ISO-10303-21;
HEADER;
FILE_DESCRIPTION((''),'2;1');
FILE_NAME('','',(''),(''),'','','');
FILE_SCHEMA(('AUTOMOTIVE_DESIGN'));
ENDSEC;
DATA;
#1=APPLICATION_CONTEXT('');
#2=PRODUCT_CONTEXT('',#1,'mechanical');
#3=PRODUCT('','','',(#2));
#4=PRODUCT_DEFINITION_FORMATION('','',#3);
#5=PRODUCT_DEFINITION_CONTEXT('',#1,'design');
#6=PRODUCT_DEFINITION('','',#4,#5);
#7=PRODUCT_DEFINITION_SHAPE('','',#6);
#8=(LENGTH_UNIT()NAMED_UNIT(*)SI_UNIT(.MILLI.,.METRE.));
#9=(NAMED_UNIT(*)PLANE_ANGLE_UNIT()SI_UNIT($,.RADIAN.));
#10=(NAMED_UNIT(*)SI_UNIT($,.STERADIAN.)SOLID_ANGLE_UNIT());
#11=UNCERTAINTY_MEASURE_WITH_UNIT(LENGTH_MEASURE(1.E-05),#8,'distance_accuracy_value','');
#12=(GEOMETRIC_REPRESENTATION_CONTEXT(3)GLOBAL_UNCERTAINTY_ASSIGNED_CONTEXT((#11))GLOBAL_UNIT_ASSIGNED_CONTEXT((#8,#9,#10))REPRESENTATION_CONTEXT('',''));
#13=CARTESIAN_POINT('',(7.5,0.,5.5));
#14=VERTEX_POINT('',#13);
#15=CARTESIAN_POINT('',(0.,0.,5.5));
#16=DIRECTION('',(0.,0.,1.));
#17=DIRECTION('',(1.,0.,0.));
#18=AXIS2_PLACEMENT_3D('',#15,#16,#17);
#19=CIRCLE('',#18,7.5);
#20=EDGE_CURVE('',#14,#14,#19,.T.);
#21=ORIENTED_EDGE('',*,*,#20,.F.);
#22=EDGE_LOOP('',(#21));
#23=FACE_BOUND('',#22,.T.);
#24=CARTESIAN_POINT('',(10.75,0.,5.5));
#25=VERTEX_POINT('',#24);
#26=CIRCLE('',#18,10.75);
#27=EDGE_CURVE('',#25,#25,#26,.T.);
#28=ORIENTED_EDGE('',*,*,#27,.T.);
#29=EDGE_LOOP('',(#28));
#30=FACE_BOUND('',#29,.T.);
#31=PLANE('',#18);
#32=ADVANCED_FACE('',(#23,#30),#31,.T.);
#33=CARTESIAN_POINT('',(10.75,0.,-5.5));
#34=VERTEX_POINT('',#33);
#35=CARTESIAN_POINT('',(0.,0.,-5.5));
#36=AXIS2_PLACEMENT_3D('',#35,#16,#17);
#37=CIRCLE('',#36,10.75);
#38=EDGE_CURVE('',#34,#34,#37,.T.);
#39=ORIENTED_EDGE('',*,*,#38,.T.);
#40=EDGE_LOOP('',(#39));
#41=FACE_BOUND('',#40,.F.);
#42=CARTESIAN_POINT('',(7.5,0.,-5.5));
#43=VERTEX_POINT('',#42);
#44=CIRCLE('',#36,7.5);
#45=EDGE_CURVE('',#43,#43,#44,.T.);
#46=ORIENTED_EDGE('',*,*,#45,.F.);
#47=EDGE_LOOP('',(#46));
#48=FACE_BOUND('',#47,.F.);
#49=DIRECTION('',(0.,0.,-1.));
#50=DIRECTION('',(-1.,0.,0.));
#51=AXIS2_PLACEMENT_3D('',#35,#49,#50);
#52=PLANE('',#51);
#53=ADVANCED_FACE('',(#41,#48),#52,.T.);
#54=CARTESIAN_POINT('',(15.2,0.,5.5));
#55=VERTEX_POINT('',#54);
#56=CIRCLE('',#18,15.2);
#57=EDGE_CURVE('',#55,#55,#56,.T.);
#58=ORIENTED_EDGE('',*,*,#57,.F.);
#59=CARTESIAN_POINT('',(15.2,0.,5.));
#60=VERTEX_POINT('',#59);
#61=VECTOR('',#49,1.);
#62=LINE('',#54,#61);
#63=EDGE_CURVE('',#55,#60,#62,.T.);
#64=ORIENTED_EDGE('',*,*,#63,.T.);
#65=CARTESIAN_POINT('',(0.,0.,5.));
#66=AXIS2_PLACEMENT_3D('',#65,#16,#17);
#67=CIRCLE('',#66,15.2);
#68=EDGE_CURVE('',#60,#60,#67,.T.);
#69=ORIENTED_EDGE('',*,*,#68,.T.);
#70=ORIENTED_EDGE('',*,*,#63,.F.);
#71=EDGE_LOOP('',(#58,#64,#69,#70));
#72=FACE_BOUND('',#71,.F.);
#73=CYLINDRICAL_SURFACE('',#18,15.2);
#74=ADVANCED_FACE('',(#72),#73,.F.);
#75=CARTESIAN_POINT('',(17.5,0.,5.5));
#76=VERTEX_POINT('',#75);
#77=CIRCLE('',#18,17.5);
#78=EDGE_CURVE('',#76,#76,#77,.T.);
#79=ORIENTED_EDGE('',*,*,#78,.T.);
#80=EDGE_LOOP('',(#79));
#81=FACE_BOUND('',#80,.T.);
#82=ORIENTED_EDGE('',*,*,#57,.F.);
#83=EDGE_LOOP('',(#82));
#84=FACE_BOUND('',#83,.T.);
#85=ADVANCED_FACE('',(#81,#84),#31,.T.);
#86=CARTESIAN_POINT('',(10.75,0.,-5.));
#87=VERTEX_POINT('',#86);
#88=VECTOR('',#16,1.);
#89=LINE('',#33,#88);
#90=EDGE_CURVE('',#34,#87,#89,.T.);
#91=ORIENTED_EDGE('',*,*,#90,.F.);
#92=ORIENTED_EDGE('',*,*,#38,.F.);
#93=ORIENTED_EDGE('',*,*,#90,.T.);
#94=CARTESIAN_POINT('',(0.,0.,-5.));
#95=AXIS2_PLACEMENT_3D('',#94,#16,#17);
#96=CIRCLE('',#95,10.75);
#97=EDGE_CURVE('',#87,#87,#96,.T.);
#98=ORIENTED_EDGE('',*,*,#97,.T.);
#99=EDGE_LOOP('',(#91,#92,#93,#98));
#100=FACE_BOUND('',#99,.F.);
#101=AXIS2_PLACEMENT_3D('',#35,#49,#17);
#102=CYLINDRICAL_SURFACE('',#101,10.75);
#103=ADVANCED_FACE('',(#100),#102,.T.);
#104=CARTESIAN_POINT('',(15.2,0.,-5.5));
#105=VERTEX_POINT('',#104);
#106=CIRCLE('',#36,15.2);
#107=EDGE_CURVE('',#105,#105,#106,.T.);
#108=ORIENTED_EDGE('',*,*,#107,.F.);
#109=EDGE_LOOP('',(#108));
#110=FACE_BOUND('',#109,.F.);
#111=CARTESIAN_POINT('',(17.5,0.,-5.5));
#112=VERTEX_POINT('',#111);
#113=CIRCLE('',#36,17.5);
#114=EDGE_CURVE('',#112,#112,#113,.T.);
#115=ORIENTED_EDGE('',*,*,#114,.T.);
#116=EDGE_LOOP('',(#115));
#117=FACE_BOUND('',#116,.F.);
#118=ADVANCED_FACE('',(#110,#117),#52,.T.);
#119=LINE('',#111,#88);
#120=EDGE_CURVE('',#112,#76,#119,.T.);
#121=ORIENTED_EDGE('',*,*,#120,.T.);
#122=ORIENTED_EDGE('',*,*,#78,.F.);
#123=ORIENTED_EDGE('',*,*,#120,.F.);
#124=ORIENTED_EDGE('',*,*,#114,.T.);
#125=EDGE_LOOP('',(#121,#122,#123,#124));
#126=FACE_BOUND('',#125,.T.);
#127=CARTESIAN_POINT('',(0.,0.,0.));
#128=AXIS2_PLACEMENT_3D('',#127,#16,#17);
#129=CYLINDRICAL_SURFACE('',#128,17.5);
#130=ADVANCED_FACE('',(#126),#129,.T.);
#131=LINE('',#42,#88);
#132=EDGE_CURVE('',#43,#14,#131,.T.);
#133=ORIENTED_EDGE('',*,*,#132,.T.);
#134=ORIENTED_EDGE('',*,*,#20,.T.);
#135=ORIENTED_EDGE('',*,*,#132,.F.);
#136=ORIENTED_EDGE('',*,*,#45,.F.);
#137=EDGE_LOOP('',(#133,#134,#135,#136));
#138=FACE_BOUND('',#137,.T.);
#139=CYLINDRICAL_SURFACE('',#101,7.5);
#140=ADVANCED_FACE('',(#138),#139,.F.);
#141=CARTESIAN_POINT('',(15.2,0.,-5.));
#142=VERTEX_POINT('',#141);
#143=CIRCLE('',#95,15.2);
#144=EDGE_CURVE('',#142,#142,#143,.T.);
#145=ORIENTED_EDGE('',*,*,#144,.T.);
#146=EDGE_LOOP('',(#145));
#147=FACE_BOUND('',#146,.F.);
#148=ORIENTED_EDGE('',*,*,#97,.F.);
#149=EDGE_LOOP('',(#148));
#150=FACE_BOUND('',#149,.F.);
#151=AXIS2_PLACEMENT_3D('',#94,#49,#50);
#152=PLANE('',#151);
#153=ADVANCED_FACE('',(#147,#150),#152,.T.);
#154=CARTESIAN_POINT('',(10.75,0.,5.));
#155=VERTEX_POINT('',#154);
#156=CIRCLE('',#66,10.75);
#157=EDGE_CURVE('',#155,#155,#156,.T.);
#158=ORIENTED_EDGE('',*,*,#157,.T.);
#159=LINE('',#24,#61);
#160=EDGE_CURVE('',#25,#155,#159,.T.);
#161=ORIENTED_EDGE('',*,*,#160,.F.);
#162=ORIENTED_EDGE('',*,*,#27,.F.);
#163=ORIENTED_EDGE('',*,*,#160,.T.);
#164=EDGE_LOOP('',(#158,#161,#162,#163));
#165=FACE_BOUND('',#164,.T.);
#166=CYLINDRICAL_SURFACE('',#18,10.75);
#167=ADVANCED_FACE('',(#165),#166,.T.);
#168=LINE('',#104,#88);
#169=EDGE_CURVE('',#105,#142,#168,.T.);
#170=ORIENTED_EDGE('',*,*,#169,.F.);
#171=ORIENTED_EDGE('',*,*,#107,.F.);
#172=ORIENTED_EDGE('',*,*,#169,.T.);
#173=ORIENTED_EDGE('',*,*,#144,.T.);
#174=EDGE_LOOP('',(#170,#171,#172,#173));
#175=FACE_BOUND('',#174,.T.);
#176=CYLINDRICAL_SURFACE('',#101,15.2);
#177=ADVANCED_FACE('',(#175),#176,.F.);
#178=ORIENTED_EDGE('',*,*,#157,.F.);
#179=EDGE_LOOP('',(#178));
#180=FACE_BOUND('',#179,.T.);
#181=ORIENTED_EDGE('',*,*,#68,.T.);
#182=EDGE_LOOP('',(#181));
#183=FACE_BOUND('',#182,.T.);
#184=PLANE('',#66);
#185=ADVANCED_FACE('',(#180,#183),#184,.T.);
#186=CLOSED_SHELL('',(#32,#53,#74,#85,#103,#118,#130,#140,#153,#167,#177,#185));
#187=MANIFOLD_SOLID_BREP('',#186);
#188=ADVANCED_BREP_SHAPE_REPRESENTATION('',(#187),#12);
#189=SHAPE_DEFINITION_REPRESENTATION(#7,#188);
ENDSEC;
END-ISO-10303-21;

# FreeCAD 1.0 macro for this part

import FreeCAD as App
import Part
import Sketcher
from FreeCAD import Vector
Q = App.Units.Quantity

doc = App.newDocument("Part")
params = doc.addObject("Spreadsheet::Sheet", "Params")
for row, (alias, value) in enumerate([
    ("sketch1_diameter", "35 mm"),
    ("pad1_length", "5.5 mm"),
    ("sketch2_diameter", "15 mm"),
    ("pocket1_length", "25 mm"),
    ("sketch3_diameter", "30.4 mm"),
    ("sketch3_diameter2", "21.5 mm"),
    ("pocket2_length", "0.5 mm"),
], start=1):
    params.set(f"A{row}", alias)
    params.set(f"B{row}", "=" + value)
    params.setAlias(f"B{row}", alias)

body = doc.addObject("PartDesign::Body", "Body")

# Sketch on XY plane
sketch1 = doc.addObject("Sketcher::SketchObject", "Sketch")
body.addObject(sketch1)
sketch1.AttachmentSupport = (doc.XY_Plane, [""])
sketch1.MapMode = "FlatFace"
sketch1.addGeometry(Part.Circle(Vector(0, 0, 0), Vector(0, 0, 1), 18), False)
sketch1.addConstraint([
    Sketcher.Constraint("Coincident", 0, 3, -1, 1),
    Sketcher.Constraint("Diameter", 0, Q("35 mm")),
])
sketch1.setExpression("Constraints[1]", "Params.sketch1_diameter")
pad1 = doc.addObject("PartDesign::Pad", "Pad")
body.addObject(pad1)
pad1.Profile = sketch1
pad1.setExpression("Length", "Params.pad1_length")

# Sketch on XY plane
sketch2 = doc.addObject("Sketcher::SketchObject", "Sketch001")
body.addObject(sketch2)
sketch2.AttachmentSupport = (doc.XY_Plane, [""])
sketch2.MapMode = "FlatFace"
sketch2.AttachmentOffset = App.Placement(Vector(0, 0, 5.5), App.Rotation())
sketch2.addGeometry(Part.Circle(Vector(0, 0, 0), Vector(0, 0, 1), 8), False)
sketch2.addConstraint([
    Sketcher.Constraint("Coincident", 0, 3, -1, 1),
    Sketcher.Constraint("Diameter", 0, Q("15 mm")),
])
sketch2.setExpression("Constraints[1]", "Params.sketch2_diameter")
pocket1 = doc.addObject("PartDesign::Pocket", "Pocket")
body.addObject(pocket1)
pocket1.Profile = sketch2
pocket1.setExpression("Length", "Params.pocket1_length")

# Sketch on XY plane
sketch3 = doc.addObject("Sketcher::SketchObject", "Sketch002")
body.addObject(sketch3)
sketch3.AttachmentSupport = (doc.XY_Plane, [""])
sketch3.MapMode = "FlatFace"
sketch3.AttachmentOffset = App.Placement(Vector(0, 0, 5.5), App.Rotation())
sketch3.addGeometry([
    Part.Circle(Vector(0, 0, 0), Vector(0, 0, 1), 15),
    Part.Circle(Vector(0, 0, 0), Vector(0, 0, 1), 11),
], False)
sketch3.addConstraint([
    Sketcher.Constraint("Coincident", 0, 3, -1, 1),
    Sketcher.Constraint("Coincident", 1, 3, -1, 1),
    Sketcher.Constraint("Diameter", 0, Q("30.4 mm")),
    Sketcher.Constraint("Diameter", 1, Q("21.5 mm")),
])
sketch3.setExpression("Constraints[2]", "Params.sketch3_diameter")
sketch3.setExpression("Constraints[3]", "Params.sketch3_diameter2")
pocket2 = doc.addObject("PartDesign::Pocket", "Pocket001")
body.addObject(pocket2)
pocket2.Profile = sketch3
pocket2.setExpression("Length", "Params.pocket2_length")
body2 = doc.addObject("PartDesign::Body", "Body001")
doc.recompute()

body2.BaseFeature = body
doc.recompute()

mirroring = doc.addObject("Part::Mirroring", "Mirroring")
mirroring.Source = body
mirroring.Base = Vector(0, 0, 0)
mirroring.Normal = Vector(0, 0, 1)
body3 = doc.addObject("PartDesign::Body", "Body002")
body3.BaseFeature = mirroring
boolean = doc.addObject("PartDesign::Boolean", "Boolean")
body2.addObject(boolean)
boolean.Type = "Fuse"
boolean.addObjects([body3])
doc.recompute()
mirroring.Visibility = False

doc.recompute()
